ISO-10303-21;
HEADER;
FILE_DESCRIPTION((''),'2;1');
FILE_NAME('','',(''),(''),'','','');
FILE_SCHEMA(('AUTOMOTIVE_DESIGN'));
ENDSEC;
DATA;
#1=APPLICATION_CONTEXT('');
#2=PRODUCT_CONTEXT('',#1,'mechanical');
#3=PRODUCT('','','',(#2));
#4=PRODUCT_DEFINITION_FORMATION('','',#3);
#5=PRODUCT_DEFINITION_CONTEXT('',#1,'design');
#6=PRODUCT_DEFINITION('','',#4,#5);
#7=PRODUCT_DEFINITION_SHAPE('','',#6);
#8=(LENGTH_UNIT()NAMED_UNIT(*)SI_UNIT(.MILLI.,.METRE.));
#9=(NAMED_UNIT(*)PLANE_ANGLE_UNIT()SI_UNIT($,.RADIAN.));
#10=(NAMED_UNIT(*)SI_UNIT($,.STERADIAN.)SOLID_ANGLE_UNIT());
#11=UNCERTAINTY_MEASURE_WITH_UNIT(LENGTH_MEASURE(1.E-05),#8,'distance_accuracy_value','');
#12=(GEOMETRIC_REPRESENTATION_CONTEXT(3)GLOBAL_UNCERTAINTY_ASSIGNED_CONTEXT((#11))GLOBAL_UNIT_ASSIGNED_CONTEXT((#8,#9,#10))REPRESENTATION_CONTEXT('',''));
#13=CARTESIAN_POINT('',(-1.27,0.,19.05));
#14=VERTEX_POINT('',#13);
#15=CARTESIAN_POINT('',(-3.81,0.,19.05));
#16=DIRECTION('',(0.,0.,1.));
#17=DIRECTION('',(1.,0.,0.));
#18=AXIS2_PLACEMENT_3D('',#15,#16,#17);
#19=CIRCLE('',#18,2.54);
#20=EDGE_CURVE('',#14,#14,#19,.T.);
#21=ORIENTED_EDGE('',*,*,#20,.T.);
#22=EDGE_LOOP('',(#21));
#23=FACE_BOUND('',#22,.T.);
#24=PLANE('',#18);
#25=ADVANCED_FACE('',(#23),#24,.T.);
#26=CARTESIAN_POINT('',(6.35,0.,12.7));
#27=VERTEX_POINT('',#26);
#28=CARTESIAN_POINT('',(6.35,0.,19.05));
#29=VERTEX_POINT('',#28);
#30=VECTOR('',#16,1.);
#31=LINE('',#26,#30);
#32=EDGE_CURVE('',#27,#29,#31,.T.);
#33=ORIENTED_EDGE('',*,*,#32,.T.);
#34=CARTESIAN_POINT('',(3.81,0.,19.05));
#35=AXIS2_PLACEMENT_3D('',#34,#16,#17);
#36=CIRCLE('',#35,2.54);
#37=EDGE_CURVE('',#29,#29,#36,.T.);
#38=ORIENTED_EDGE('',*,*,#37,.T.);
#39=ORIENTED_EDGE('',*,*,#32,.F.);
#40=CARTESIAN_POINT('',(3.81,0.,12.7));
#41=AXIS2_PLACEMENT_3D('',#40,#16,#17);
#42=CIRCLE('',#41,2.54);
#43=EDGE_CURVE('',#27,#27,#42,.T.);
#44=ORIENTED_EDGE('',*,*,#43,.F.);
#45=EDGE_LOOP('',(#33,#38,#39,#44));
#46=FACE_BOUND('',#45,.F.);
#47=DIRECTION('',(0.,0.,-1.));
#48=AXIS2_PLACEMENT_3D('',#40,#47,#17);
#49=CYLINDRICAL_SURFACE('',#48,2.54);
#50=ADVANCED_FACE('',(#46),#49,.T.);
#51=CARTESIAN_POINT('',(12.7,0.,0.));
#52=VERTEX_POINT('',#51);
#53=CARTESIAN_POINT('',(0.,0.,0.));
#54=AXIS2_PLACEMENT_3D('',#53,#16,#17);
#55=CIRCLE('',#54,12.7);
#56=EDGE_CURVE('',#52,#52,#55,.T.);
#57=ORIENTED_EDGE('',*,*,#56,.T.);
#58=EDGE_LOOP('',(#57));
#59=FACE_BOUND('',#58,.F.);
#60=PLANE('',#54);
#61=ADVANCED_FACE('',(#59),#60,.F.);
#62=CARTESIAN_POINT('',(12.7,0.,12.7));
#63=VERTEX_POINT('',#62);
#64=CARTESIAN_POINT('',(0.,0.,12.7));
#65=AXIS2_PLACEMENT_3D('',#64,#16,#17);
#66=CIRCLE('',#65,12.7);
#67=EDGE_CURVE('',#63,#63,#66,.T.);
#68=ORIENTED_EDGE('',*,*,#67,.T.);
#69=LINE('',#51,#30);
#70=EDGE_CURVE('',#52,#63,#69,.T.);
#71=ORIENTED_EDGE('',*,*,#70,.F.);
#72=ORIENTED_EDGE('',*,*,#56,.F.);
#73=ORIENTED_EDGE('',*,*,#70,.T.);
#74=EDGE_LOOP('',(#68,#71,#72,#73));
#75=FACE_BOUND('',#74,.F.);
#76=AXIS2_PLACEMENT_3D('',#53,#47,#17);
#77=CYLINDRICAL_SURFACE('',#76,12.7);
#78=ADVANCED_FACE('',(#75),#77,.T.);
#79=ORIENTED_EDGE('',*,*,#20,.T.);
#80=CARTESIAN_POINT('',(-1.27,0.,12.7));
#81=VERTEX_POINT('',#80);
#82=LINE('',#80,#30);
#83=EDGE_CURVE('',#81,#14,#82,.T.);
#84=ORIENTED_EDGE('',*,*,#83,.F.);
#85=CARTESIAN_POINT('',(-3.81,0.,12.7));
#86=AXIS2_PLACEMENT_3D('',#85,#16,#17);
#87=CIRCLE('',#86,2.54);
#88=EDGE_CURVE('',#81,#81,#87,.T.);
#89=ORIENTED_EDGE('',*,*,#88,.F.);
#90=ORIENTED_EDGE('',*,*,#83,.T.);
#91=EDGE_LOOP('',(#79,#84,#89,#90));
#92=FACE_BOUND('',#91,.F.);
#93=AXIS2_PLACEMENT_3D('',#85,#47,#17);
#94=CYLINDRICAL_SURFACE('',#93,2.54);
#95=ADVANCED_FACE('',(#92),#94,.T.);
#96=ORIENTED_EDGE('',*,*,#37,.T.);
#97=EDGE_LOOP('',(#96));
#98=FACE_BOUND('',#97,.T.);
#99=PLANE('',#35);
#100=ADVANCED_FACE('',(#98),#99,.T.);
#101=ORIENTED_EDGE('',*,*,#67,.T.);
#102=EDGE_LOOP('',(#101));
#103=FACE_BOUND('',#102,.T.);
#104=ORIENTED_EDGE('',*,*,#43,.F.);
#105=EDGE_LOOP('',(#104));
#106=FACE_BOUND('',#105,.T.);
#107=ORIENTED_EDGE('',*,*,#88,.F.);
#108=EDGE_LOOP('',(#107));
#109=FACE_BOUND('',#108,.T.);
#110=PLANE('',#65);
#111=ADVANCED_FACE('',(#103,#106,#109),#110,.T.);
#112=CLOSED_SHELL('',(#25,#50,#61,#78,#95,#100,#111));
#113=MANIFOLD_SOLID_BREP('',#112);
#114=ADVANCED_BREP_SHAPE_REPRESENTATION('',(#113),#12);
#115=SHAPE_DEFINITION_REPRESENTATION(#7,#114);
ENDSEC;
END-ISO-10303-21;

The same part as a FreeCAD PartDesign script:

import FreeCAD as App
import Part
import Sketcher
Q = App.Units.Quantity

doc = App.newDocument("Part")
body = doc.addObject("PartDesign::Body", "Body")

# Sketch on XY plane
sketch1 = doc.addObject("Sketcher::SketchObject", "Sketch")
body.addObject(sketch1)
sketch1.AttachmentSupport = (doc.XY_Plane, [""])
sketch1.MapMode = "FlatFace"
sketch1.addGeometry(Part.Circle(App.Vector(0, 0, 0), App.Vector(0, 0, 1), 12.7), False)
sketch1.addConstraint([
    Sketcher.Constraint("Coincident", 0, 3, -1, 1),
    Sketcher.Constraint("Diameter", 0, Q("1 in")),
])
pad1 = doc.addObject("PartDesign::Pad", "Pad")
body.addObject(pad1)
pad1.Profile = sketch1
pad1.Length = Q("0.5 in")

# Sketch on XY plane
sketch2 = doc.addObject("Sketcher::SketchObject", "Sketch001")
body.addObject(sketch2)
sketch2.AttachmentSupport = (doc.XY_Plane, [""])
sketch2.MapMode = "FlatFace"
sketch2.AttachmentOffset = App.Placement(App.Vector(0, 0, 0.5 * 25.4), App.Rotation())
sketch2.addGeometry([
    Part.Circle(App.Vector(-3.81, 0, 0), App.Vector(0, 0, 1), 2.54),
    Part.Circle(App.Vector(3.81, 0, 0), App.Vector(0, 0, 1), 2.54),
], False)
sketch2.addConstraint([
    Sketcher.Constraint("Equal", 0, 1),
    Sketcher.Constraint("Symmetric", 0, 3, 1, 3, -1, 1),
    Sketcher.Constraint("PointOnObject", 0, 3, -1),
    Sketcher.Constraint("Diameter", 0, Q("0.2 in")),
    Sketcher.Constraint("DistanceX", 0, 3, 1, 3, Q("0.3 in")),
])
pad2 = doc.addObject("PartDesign::Pad", "Pad001")
body.addObject(pad2)
pad2.Profile = sketch2
pad2.Length = Q("0.25 in")

doc.recompute()
